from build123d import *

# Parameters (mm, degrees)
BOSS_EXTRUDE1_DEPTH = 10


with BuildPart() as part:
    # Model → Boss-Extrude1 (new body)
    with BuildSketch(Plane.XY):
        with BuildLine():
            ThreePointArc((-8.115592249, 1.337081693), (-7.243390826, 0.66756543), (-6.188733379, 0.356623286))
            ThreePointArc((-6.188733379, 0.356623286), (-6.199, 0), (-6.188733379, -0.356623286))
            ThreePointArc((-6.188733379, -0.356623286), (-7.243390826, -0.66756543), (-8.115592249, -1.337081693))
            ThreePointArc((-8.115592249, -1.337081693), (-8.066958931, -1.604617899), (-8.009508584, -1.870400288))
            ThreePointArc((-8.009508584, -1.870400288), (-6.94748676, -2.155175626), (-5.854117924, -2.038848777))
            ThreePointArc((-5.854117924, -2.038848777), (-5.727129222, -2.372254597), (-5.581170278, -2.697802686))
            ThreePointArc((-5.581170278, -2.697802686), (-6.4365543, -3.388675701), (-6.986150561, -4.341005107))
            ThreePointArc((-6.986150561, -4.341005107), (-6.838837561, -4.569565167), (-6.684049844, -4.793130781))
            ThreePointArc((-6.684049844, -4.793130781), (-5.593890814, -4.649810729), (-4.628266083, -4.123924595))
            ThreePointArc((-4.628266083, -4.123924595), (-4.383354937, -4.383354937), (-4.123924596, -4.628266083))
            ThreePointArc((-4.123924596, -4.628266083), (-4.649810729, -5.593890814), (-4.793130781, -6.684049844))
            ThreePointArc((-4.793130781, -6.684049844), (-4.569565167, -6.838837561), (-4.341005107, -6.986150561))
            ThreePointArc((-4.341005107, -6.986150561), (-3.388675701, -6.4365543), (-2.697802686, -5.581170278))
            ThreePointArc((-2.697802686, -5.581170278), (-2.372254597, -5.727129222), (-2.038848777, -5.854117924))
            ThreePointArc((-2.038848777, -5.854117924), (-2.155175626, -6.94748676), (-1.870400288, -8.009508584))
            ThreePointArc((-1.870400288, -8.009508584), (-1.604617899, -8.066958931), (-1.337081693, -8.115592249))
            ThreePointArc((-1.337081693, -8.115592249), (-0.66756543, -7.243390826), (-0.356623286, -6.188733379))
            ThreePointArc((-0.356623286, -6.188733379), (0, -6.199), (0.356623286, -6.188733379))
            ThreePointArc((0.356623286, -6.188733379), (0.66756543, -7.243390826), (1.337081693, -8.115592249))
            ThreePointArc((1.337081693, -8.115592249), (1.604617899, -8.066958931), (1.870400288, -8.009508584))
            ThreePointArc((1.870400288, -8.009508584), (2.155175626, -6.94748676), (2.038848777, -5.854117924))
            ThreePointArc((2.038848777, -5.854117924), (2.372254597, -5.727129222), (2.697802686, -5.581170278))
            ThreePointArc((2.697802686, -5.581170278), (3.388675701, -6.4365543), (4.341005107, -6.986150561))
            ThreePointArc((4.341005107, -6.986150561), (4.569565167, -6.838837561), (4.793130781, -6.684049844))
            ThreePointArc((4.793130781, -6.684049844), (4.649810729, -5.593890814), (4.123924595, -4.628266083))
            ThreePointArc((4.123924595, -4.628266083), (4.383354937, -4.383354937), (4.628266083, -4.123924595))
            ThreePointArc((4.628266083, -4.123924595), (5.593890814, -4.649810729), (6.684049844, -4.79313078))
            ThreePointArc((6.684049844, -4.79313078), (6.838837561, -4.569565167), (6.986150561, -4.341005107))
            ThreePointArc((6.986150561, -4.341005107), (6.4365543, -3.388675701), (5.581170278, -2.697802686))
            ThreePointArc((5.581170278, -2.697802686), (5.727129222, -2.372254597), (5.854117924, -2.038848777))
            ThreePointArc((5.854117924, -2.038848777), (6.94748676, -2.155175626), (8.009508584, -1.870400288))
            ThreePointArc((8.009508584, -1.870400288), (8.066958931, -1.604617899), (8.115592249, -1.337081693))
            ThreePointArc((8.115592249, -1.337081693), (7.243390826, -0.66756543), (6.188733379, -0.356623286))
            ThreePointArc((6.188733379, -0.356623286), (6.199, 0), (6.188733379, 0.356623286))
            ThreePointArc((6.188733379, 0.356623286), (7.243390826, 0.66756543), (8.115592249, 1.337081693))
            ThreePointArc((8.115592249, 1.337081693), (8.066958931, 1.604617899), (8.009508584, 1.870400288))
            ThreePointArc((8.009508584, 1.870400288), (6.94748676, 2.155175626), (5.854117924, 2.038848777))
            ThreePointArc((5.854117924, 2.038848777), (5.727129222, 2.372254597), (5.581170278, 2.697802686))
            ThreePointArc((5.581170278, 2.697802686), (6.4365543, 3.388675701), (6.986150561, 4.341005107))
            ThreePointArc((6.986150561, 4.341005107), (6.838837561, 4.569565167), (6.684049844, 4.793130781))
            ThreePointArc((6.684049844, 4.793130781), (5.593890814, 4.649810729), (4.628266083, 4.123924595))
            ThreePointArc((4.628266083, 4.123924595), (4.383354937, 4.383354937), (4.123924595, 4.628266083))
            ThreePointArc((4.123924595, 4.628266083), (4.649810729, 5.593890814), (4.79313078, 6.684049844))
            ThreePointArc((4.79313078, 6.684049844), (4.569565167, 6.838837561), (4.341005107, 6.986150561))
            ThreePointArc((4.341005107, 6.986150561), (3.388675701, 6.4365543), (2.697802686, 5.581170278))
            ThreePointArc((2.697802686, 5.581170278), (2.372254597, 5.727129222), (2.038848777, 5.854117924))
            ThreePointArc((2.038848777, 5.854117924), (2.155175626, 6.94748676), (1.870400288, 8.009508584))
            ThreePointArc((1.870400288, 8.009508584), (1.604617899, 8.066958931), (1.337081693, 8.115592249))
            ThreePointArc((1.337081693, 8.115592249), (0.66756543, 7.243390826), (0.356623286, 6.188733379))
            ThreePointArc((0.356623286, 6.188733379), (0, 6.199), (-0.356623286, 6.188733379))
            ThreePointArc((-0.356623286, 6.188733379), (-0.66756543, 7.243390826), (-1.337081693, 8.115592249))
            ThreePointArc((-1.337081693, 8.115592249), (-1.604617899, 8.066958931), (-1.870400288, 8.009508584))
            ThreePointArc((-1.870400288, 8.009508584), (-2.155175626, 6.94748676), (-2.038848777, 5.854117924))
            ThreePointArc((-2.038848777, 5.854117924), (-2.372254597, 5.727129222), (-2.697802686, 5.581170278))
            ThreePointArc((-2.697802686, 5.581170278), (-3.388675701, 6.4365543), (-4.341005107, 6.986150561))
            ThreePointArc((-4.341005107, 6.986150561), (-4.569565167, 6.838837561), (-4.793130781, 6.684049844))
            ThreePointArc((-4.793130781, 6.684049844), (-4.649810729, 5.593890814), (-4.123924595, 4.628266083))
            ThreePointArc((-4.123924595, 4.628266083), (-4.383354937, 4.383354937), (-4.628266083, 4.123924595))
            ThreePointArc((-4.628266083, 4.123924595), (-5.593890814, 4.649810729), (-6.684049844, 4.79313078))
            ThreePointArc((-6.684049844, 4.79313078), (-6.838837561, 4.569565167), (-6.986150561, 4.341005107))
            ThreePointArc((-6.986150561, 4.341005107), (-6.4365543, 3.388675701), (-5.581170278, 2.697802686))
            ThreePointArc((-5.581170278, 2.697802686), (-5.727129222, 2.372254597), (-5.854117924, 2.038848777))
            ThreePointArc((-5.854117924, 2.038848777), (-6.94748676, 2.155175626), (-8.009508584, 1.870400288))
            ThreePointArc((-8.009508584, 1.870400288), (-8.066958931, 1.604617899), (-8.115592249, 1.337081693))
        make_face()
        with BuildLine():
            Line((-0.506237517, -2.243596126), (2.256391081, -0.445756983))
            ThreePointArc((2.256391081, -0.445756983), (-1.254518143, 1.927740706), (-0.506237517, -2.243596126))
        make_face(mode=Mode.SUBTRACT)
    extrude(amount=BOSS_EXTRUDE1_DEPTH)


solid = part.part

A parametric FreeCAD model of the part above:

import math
import FreeCAD as App
import Part
import Sketcher

V = App.Vector

doc = App.newDocument("Part")
body = doc.addObject("PartDesign::Body", "Body")

# Sketch on XY plane
sketch1 = doc.addObject("Sketcher::SketchObject", "Sketch")
body.addObject(sketch1)
sketch1.AttachmentSupport = (doc.XY_Plane, [""])
sketch1.MapMode = "FlatFace"
sketch1.addGeometry([
    Part.ArcOfCircle(Part.Circle(V(-5.9, 3.3, 0), V(0, 0, 1), 3), math.radians(-138), math.radians(-96)),  # 0
    Part.ArcOfCircle(Part.Circle(V(0, 0, 0), V(0, 0, 1), 6.2), math.radians(176.7), math.radians(183.3)),  # 1
    Part.ArcOfCircle(Part.Circle(V(-5.9, -3.3, 0), V(0, 0, 1), 3), math.radians(96), math.radians(138)),  # 2
    Part.ArcOfCircle(Part.Circle(V(0, 0, 0), V(0, 0, 1), 8.2), math.radians(-170.64), math.radians(-166.86)),  # 3
    Part.ArcOfCircle(Part.Circle(V(-6.7, 0.8, 0), V(0, 0, 1), 3), math.radians(-116), math.radians(-73)),  # 4
    Part.ArcOfCircle(Part.Circle(V(0, 0, 0), V(0, 0, 1), 6.2), math.radians(-160.8), math.radians(-154.2)),  # 5
    Part.ArcOfCircle(Part.Circle(V(-4.2, -5.3, 0), V(0, 0, 1), 3), math.radians(118), math.radians(161)),  # 6
    Part.ArcOfCircle(Part.Circle(V(0, 0, 0), V(0, 0, 1), 8.2), math.radians(-148.14), math.radians(-144.36)),  # 7
    Part.ArcOfCircle(Part.Circle(V(-6.5, -1.8, 0), V(0, 0, 1), 3), math.radians(-93), math.radians(-51)),  # 8
    Part.ArcOfCircle(Part.Circle(V(0, 0, 0), V(0, 0, 1), 6.2), math.radians(-138.3), math.radians(-131.7)),  # 9
    Part.ArcOfCircle(Part.Circle(V(-1.8, -6.5, 0), V(0, 0, 1), 3), math.radians(141), math.radians(183)),  # 10
    Part.ArcOfCircle(Part.Circle(V(0, 0, 0), V(0, 0, 1), 8.2), math.radians(-125.64), math.radians(-121.86)),  # 11
    Part.ArcOfCircle(Part.Circle(V(-5.3, -4.2, 0), V(0, 0, 1), 3), math.radians(-71), math.radians(-28)),  # 12
    Part.ArcOfCircle(Part.Circle(V(0, 0, 0), V(0, 0, 1), 6.2), math.radians(-115.8), math.radians(-109.2)),  # 13
    Part.ArcOfCircle(Part.Circle(V(0.8, -6.7, 0), V(0, 0, 1), 3), math.radians(163), math.radians(206)),  # 14
    Part.ArcOfCircle(Part.Circle(V(0, 0, 0), V(0, 0, 1), 8.2), math.radians(-103.14), math.radians(-99.36)),  # 15
    Part.ArcOfCircle(Part.Circle(V(-3.3, -5.9, 0), V(0, 0, 1), 3), math.radians(-48), math.radians(-6)),  # 16
    Part.ArcOfCircle(Part.Circle(V(0, 0, 0), V(0, 0, 1), 6.2), math.radians(-93.3), math.radians(-86.7)),  # 17
    Part.ArcOfCircle(Part.Circle(V(3.3, -5.9, 0), V(0, 0, 1), 3), math.radians(-174), math.radians(-132)),  # 18
    Part.ArcOfCircle(Part.Circle(V(0, 0, 0), V(0, 0, 1), 8.2), math.radians(-80.64), math.radians(-76.86)),  # 19
    Part.ArcOfCircle(Part.Circle(V(-0.8, -6.7, 0), V(0, 0, 1), 3), math.radians(-26), math.radians(17)),  # 20
    Part.ArcOfCircle(Part.Circle(V(0, 0, 0), V(0, 0, 1), 6.2), math.radians(-70.8), math.radians(-64.2)),  # 21
    Part.ArcOfCircle(Part.Circle(V(5.3, -4.2, 0), V(0, 0, 1), 3), math.radians(-152), math.radians(-109)),  # 22
    Part.ArcOfCircle(Part.Circle(V(0, 0, 0), V(0, 0, 1), 8.2), math.radians(-58.14), math.radians(-54.36)),  # 23
    Part.ArcOfCircle(Part.Circle(V(1.8, -6.5, 0), V(0, 0, 1), 3), math.radians(-3), math.radians(39)),  # 24
    Part.ArcOfCircle(Part.Circle(V(0, 0, 0), V(0, 0, 1), 6.2), math.radians(-48.3), math.radians(-41.7)),  # 25
    Part.ArcOfCircle(Part.Circle(V(6.5, -1.8, 0), V(0, 0, 1), 3), math.radians(-129), math.radians(-87)),  # 26
    Part.ArcOfCircle(Part.Circle(V(0, 0, 0), V(0, 0, 1), 8.2), math.radians(-35.64), math.radians(-31.86)),  # 27
    Part.ArcOfCircle(Part.Circle(V(4.2, -5.3, 0), V(0, 0, 1), 3), math.radians(19), math.radians(62)),  # 28
    Part.ArcOfCircle(Part.Circle(V(0, 0, 0), V(0, 0, 1), 6.2), math.radians(-25.8), math.radians(-19.2)),  # 29
    Part.ArcOfCircle(Part.Circle(V(6.7, 0.8, 0), V(0, 0, 1), 3), math.radians(-107), math.radians(-64)),  # 30
    Part.ArcOfCircle(Part.Circle(V(0, 0, 0), V(0, 0, 1), 8.2), math.radians(-13.14), math.radians(-9.36)),  # 31
    Part.ArcOfCircle(Part.Circle(V(5.9, -3.3, 0), V(0, 0, 1), 3), math.radians(42), math.radians(84)),  # 32
    Part.ArcOfCircle(Part.Circle(V(0, 0, 0), V(0, 0, 1), 6.2), math.radians(-3.3), math.radians(3.3)),  # 33
    Part.ArcOfCircle(Part.Circle(V(5.9, 3.3, 0), V(0, 0, 1), 3), math.radians(-84), math.radians(-42)),  # 34
    Part.ArcOfCircle(Part.Circle(V(0, 0, 0), V(0, 0, 1), 8.2), math.radians(9.36), math.radians(13.14)),  # 35
    Part.ArcOfCircle(Part.Circle(V(6.7, -0.8, 0), V(0, 0, 1), 3), math.radians(64), math.radians(107)),  # 36
    Part.ArcOfCircle(Part.Circle(V(0, 0, 0), V(0, 0, 1), 6.2), math.radians(19.2), math.radians(25.8)),  # 37
    Part.ArcOfCircle(Part.Circle(V(4.2, 5.3, 0), V(0, 0, 1), 3), math.radians(-62), math.radians(-19)),  # 38
    Part.ArcOfCircle(Part.Circle(V(0, 0, 0), V(0, 0, 1), 8.2), math.radians(31.86), math.radians(35.64)),  # 39
    Part.ArcOfCircle(Part.Circle(V(6.5, 1.8, 0), V(0, 0, 1), 3), math.radians(87), math.radians(129)),  # 40
    Part.ArcOfCircle(Part.Circle(V(0, 0, 0), V(0, 0, 1), 6.2), math.radians(41.7), math.radians(48.3)),  # 41
    Part.ArcOfCircle(Part.Circle(V(1.8, 6.5, 0), V(0, 0, 1), 3), math.radians(-39), math.radians(3)),  # 42
    Part.ArcOfCircle(Part.Circle(V(0, 0, 0), V(0, 0, 1), 8.2), math.radians(54.36), math.radians(58.14)),  # 43
    Part.ArcOfCircle(Part.Circle(V(5.3, 4.2, 0), V(0, 0, 1), 3), math.radians(109), math.radians(152)),  # 44
    Part.ArcOfCircle(Part.Circle(V(0, 0, 0), V(0, 0, 1), 6.2), math.radians(64.2), math.radians(70.8)),  # 45
    Part.ArcOfCircle(Part.Circle(V(-0.8, 6.7, 0), V(0, 0, 1), 3), math.radians(-17), math.radians(26)),  # 46
    Part.ArcOfCircle(Part.Circle(V(0, 0, 0), V(0, 0, 1), 8.2), math.radians(76.86), math.radians(80.64)),  # 47
    Part.ArcOfCircle(Part.Circle(V(3.3, 5.9, 0), V(0, 0, 1), 3), math.radians(132), math.radians(174)),  # 48
    Part.ArcOfCircle(Part.Circle(V(0, 0, 0), V(0, 0, 1), 6.2), math.radians(86.7), math.radians(93.3)),  # 49
    Part.ArcOfCircle(Part.Circle(V(-3.3, 5.9, 0), V(0, 0, 1), 3), math.radians(6), math.radians(48)),  # 50
    Part.ArcOfCircle(Part.Circle(V(0, 0, 0), V(0, 0, 1), 8.2), math.radians(99.36), math.radians(103.14)),  # 51
    Part.ArcOfCircle(Part.Circle(V(0.8, 6.7, 0), V(0, 0, 1), 3), math.radians(154), math.radians(197)),  # 52
    Part.ArcOfCircle(Part.Circle(V(0, 0, 0), V(0, 0, 1), 6.2), math.radians(109.2), math.radians(115.8)),  # 53
    Part.ArcOfCircle(Part.Circle(V(-5.3, 4.2, 0), V(0, 0, 1), 3), math.radians(28), math.radians(71)),  # 54
    Part.ArcOfCircle(Part.Circle(V(0, 0, 0), V(0, 0, 1), 8.2), math.radians(121.86), math.radians(125.64)),  # 55
    Part.ArcOfCircle(Part.Circle(V(-1.8, 6.5, 0), V(0, 0, 1), 3), math.radians(177), math.radians(219)),  # 56
    Part.ArcOfCircle(Part.Circle(V(0, 0, 0), V(0, 0, 1), 6.2), math.radians(131.7), math.radians(138.3)),  # 57
    Part.ArcOfCircle(Part.Circle(V(-6.5, 1.8, 0), V(0, 0, 1), 3), math.radians(51), math.radians(93)),  # 58
    Part.ArcOfCircle(Part.Circle(V(0, 0, 0), V(0, 0, 1), 8.2), math.radians(144.36), math.radians(148.14)),  # 59
    Part.ArcOfCircle(Part.Circle(V(-4.2, 5.3, 0), V(0, 0, 1), 3), math.radians(-161), math.radians(-118)),  # 60
    Part.ArcOfCircle(Part.Circle(V(0, 0, 0), V(0, 0, 1), 6.2), math.radians(154.2), math.radians(160.8)),  # 61
    Part.ArcOfCircle(Part.Circle(V(-6.7, -0.8, 0), V(0, 0, 1), 3), math.radians(73), math.radians(116)),  # 62
    Part.ArcOfCircle(Part.Circle(V(0, 0, 0), V(0, 0, 1), 8.2), math.radians(166.86), math.radians(170.64)),  # 63
    Part.LineSegment(V(2.3, -0.4, 0), V(-0.5, -2.2, 0)),  # 64
    Part.ArcOfCircle(Part.Circle(V(0, 0, 0), V(0, 0, 1), 2.3), math.radians(-11), math.radians(257)),  # 65
], False)
sketch1.addConstraint([
    Sketcher.Constraint("Coincident", 0, 2, 1, 1),
    Sketcher.Constraint("Coincident", 1, 2, 2, 1),
    Sketcher.Constraint("Coincident", 2, 2, 3, 1),
    Sketcher.Constraint("Coincident", 3, 2, 4, 1),
    Sketcher.Constraint("Coincident", 4, 2, 5, 1),
    Sketcher.Constraint("Coincident", 5, 2, 6, 1),
    Sketcher.Constraint("Coincident", 6, 2, 7, 1),
    Sketcher.Constraint("Coincident", 7, 2, 8, 1),
    Sketcher.Constraint("Coincident", 8, 2, 9, 1),
    Sketcher.Constraint("Coincident", 9, 2, 10, 1),
    Sketcher.Constraint("Coincident", 10, 2, 11, 1),
    Sketcher.Constraint("Coincident", 11, 2, 12, 1),
    Sketcher.Constraint("Coincident", 12, 2, 13, 1),
    Sketcher.Constraint("Coincident", 13, 2, 14, 1),
    Sketcher.Constraint("Coincident", 14, 2, 15, 1),
    Sketcher.Constraint("Coincident", 15, 2, 16, 1),
    Sketcher.Constraint("Coincident", 16, 2, 17, 1),
    Sketcher.Constraint("Coincident", 17, 2, 18, 1),
    Sketcher.Constraint("Coincident", 18, 2, 19, 1),
    Sketcher.Constraint("Coincident", 19, 2, 20, 1),
    Sketcher.Constraint("Coincident", 20, 2, 21, 1),
    Sketcher.Constraint("Coincident", 21, 2, 22, 1),
    Sketcher.Constraint("Coincident", 22, 2, 23, 1),
    Sketcher.Constraint("Coincident", 23, 2, 24, 1),
    Sketcher.Constraint("Coincident", 24, 2, 25, 1),
    Sketcher.Constraint("Coincident", 25, 2, 26, 1),
    Sketcher.Constraint("Coincident", 26, 2, 27, 1),
    Sketcher.Constraint("Coincident", 27, 2, 28, 1),
    Sketcher.Constraint("Coincident", 28, 2, 29, 1),
    Sketcher.Constraint("Coincident", 29, 2, 30, 1),
    Sketcher.Constraint("Coincident", 30, 2, 31, 1),
    Sketcher.Constraint("Coincident", 31, 2, 32, 1),
    Sketcher.Constraint("Coincident", 32, 2, 33, 1),
    Sketcher.Constraint("Coincident", 33, 2, 34, 1),
    Sketcher.Constraint("Coincident", 34, 2, 35, 1),
    Sketcher.Constraint("Coincident", 35, 2, 36, 1),
    Sketcher.Constraint("Coincident", 36, 2, 37, 1),
    Sketcher.Constraint("Coincident", 37, 2, 38, 1),
    Sketcher.Constraint("Coincident", 38, 2, 39, 1),
    Sketcher.Constraint("Coincident", 39, 2, 40, 1),
    Sketcher.Constraint("Coincident", 40, 2, 41, 1),
    Sketcher.Constraint("Coincident", 41, 2, 42, 1),
    Sketcher.Constraint("Coincident", 42, 2, 43, 1),
    Sketcher.Constraint("Coincident", 43, 2, 44, 1),
    Sketcher.Constraint("Coincident", 44, 2, 45, 1),
    Sketcher.Constraint("Coincident", 45, 2, 46, 1),
    Sketcher.Constraint("Coincident", 46, 2, 47, 1),
    Sketcher.Constraint("Coincident", 47, 2, 48, 1),
    Sketcher.Constraint("Coincident", 48, 2, 49, 1),
    Sketcher.Constraint("Coincident", 49, 2, 50, 1),
    Sketcher.Constraint("Coincident", 50, 2, 51, 1),
    Sketcher.Constraint("Coincident", 51, 2, 52, 1),
    Sketcher.Constraint("Coincident", 52, 2, 53, 1),
    Sketcher.Constraint("Coincident", 53, 2, 54, 1),
    Sketcher.Constraint("Coincident", 54, 2, 55, 1),
    Sketcher.Constraint("Coincident", 55, 2, 56, 1),
    Sketcher.Constraint("Coincident", 56, 2, 57, 1),
    Sketcher.Constraint("Coincident", 57, 2, 58, 1),
    Sketcher.Constraint("Coincident", 58, 2, 59, 1),
    Sketcher.Constraint("Coincident", 59, 2, 60, 1),
    Sketcher.Constraint("Coincident", 60, 2, 61, 1),
    Sketcher.Constraint("Coincident", 61, 2, 62, 1),
    Sketcher.Constraint("Coincident", 62, 2, 63, 1),
    Sketcher.Constraint("Coincident", 63, 2, 0, 1),
    Sketcher.Constraint("Coincident", 64, 1, 65, 1),
    Sketcher.Constraint("Coincident", 65, 2, 64, 2),
    Sketcher.Constraint("Coincident", 1, 3, -1, 1),
    Sketcher.Constraint("Coincident", 3, 3, -1, 1),
    Sketcher.Constraint("Coincident", 5, 3, -1, 1),
    Sketcher.Constraint("Coincident", 7, 3, -1, 1),
    Sketcher.Constraint("Coincident", 9, 3, -1, 1),
    Sketcher.Constraint("Coincident", 11, 3, -1, 1),
    Sketcher.Constraint("Coincident", 13, 3, -1, 1),
    Sketcher.Constraint("Coincident", 15, 3, -1, 1),
    Sketcher.Constraint("Coincident", 17, 3, -1, 1),
    Sketcher.Constraint("Coincident", 19, 3, -1, 1),
    Sketcher.Constraint("Coincident", 21, 3, -1, 1),
    Sketcher.Constraint("Coincident", 23, 3, -1, 1),
    Sketcher.Constraint("Coincident", 25, 3, -1, 1),
    Sketcher.Constraint("Coincident", 27, 3, -1, 1),
    Sketcher.Constraint("Coincident", 29, 3, -1, 1),
    Sketcher.Constraint("Coincident", 31, 3, -1, 1),
    Sketcher.Constraint("Coincident", 33, 3, -1, 1),
    Sketcher.Constraint("Coincident", 35, 3, -1, 1),
    Sketcher.Constraint("Coincident", 37, 3, -1, 1),
    Sketcher.Constraint("Coincident", 39, 3, -1, 1),
    Sketcher.Constraint("Coincident", 41, 3, -1, 1),
    Sketcher.Constraint("Coincident", 43, 3, -1, 1),
    Sketcher.Constraint("Coincident", 45, 3, -1, 1),
    Sketcher.Constraint("Coincident", 47, 3, -1, 1),
    Sketcher.Constraint("Coincident", 49, 3, -1, 1),
    Sketcher.Constraint("Coincident", 51, 3, -1, 1),
    Sketcher.Constraint("Coincident", 53, 3, -1, 1),
    Sketcher.Constraint("Coincident", 55, 3, -1, 1),
    Sketcher.Constraint("Coincident", 57, 3, -1, 1),
    Sketcher.Constraint("Coincident", 59, 3, -1, 1),
    Sketcher.Constraint("Coincident", 61, 3, -1, 1),
    Sketcher.Constraint("Coincident", 63, 3, -1, 1),
    Sketcher.Constraint("Coincident", 65, 3, -1, 1),
    Sketcher.Constraint("Equal", 0, 2),
    Sketcher.Constraint("Equal", 2, 4),
    Sketcher.Constraint("Equal", 1, 5),
    Sketcher.Constraint("Equal", 4, 6),
    Sketcher.Constraint("Equal", 3, 7),
    Sketcher.Constraint("Equal", 6, 8),
    Sketcher.Constraint("Equal", 5, 9),
    Sketcher.Constraint("Equal", 8, 10),
    Sketcher.Constraint("Equal", 7, 11),
    Sketcher.Constraint("Equal", 10, 12),
    Sketcher.Constraint("Equal", 9, 13),
    Sketcher.Constraint("Equal", 12, 14),
    Sketcher.Constraint("Equal", 11, 15),
    Sketcher.Constraint("Equal", 14, 16),
    Sketcher.Constraint("Equal", 13, 17),
    Sketcher.Constraint("Equal", 16, 18),
    Sketcher.Constraint("Equal", 15, 19),
    Sketcher.Constraint("Equal", 18, 20),
    Sketcher.Constraint("Equal", 17, 21),
    Sketcher.Constraint("Equal", 20, 22),
    Sketcher.Constraint("Equal", 19, 23),
    Sketcher.Constraint("Equal", 22, 24),
    Sketcher.Constraint("Equal", 21, 25),
    Sketcher.Constraint("Equal", 24, 26),
    Sketcher.Constraint("Equal", 23, 27),
    Sketcher.Constraint("Equal", 26, 28),
    Sketcher.Constraint("Equal", 25, 29),
    Sketcher.Constraint("Equal", 28, 30),
    Sketcher.Constraint("Equal", 27, 31),
    Sketcher.Constraint("Equal", 30, 32),
    Sketcher.Constraint("Equal", 29, 33),
    Sketcher.Constraint("Equal", 32, 34),
    Sketcher.Constraint("Equal", 31, 35),
    Sketcher.Constraint("Equal", 34, 36),
    Sketcher.Constraint("Equal", 33, 37),
    Sketcher.Constraint("Equal", 36, 38),
    Sketcher.Constraint("Equal", 35, 39),
    Sketcher.Constraint("Equal", 38, 40),
    Sketcher.Constraint("Equal", 37, 41),
    Sketcher.Constraint("Equal", 40, 42),
    Sketcher.Constraint("Equal", 39, 43),
    Sketcher.Constraint("Equal", 42, 44),
    Sketcher.Constraint("Equal", 41, 45),
    Sketcher.Constraint("Equal", 44, 46),
    Sketcher.Constraint("Equal", 43, 47),
    Sketcher.Constraint("Equal", 46, 48),
    Sketcher.Constraint("Equal", 45, 49),
    Sketcher.Constraint("Equal", 48, 50),
    Sketcher.Constraint("Equal", 47, 51),
    Sketcher.Constraint("Equal", 50, 52),
    Sketcher.Constraint("Equal", 49, 53),
    Sketcher.Constraint("Equal", 52, 54),
    Sketcher.Constraint("Equal", 51, 55),
    Sketcher.Constraint("Equal", 54, 56),
    Sketcher.Constraint("Equal", 53, 57),
    Sketcher.Constraint("Equal", 56, 58),
    Sketcher.Constraint("Equal", 55, 59),
    Sketcher.Constraint("Equal", 58, 60),
    Sketcher.Constraint("Equal", 57, 61),
    Sketcher.Constraint("Equal", 60, 62),
    Sketcher.Constraint("Equal", 59, 63),
    Sketcher.Constraint("Symmetric", 0, 3, 32, 3, -1, 1),
    Sketcher.Constraint("Symmetric", 2, 3, 34, 3, -1, 1),
    Sketcher.Constraint("Symmetric", 4, 3, 36, 3, -1, 1),
    Sketcher.Constraint("Symmetric", 6, 3, 38, 3, -1, 1),
    Sketcher.Constraint("Symmetric", 8, 3, 40, 3, -1, 1),
    Sketcher.Constraint("Symmetric", 10, 3, 42, 3, -1, 1),
    Sketcher.Constraint("Symmetric", 12, 3, 44, 3, -1, 1),
    Sketcher.Constraint("Symmetric", 14, 3, 46, 3, -1, 1),
    Sketcher.Constraint("Symmetric", 16, 3, 48, 3, -1, 1),
    Sketcher.Constraint("Symmetric", 18, 3, 50, 3, -1, 1),
    Sketcher.Constraint("Symmetric", 20, 3, 52, 3, -1, 1),
    Sketcher.Constraint("Symmetric", 22, 3, 54, 3, -1, 1),
    Sketcher.Constraint("Symmetric", 24, 3, 56, 3, -1, 1),
    Sketcher.Constraint("Symmetric", 26, 3, 58, 3, -1, 1),
    Sketcher.Constraint("Symmetric", 28, 3, 60, 3, -1, 1),
    Sketcher.Constraint("Symmetric", 30, 3, 62, 3, -1, 1),
    Sketcher.Constraint("Symmetric", 16, 3, 18, 3, -2),
    Sketcher.Constraint("Symmetric", 14, 3, 20, 3, -2),
    Sketcher.Constraint("Symmetric", 12, 3, 22, 3, -2),
    Sketcher.Constraint("Symmetric", 10, 3, 24, 3, -2),
    Sketcher.Constraint("Symmetric", 8, 3, 26, 3, -2),
    Sketcher.Constraint("Symmetric", 6, 3, 28, 3, -2),
    Sketcher.Constraint("Symmetric", 4, 3, 30, 3, -2),
    Sketcher.Constraint("Symmetric", 2, 3, 32, 3, -2),
    Sketcher.Constraint("Radius", 65, 2.3),
    Sketcher.Constraint("Radius", 0, 3.005),
    Sketcher.Constraint("Radius", 1, 6.199),
    Sketcher.Constraint("Radius", 3, 8.225),
    Sketcher.Constraint("DistanceX", 6, 3, -1, 1, 4.152601),
    Sketcher.Constraint("DistanceY", 12, 3, -1, 1, 4.152601),
    Sketcher.Constraint("DistanceY", 3, 2, -1, 1, 1.8704),
    Sketcher.Constraint("DistanceX", 14, 2, -1, 1, 1.8704),
    Sketcher.Constraint("Distance", 64, 3.29611),
    Sketcher.Constraint("DistanceX", 0, 3, -1, 1, 5.880612),
    Sketcher.Constraint("DistanceY", -1, 1, 4, 3, 0.840689),
    Sketcher.Constraint("DistanceX", -1, 1, 14, 3, 0.840689),
    Sketcher.Constraint("DistanceY", 16, 3, -1, 1, 5.880612),
    Sketcher.Constraint("DistanceY", 2, 2, -1, 1, 1.337082),
    Sketcher.Constraint("DistanceX", 5, 2, -1, 1, 5.58117),
    Sketcher.Constraint("DistanceX", 7, 2, -1, 1, 6.68405),
    Sketcher.Constraint("DistanceX", 10, 2, -1, 1, 4.793131),
    Sketcher.Constraint("DistanceY", 11, 2, -1, 1, 6.986151),
    Sketcher.Constraint("DistanceX", 15, 2, -1, 1, 1.337082),
    Sketcher.Constraint("DistanceX", -1, 1, 64, 1, 2.256391),
    Sketcher.Constraint("DistanceX", 8, 3, -1, 1, 6.524048),
    Sketcher.Constraint("DistanceX", 10, 3, -1, 1, 1.792393),
])
pad1 = doc.addObject("PartDesign::Pad", "Pad")
body.addObject(pad1)
pad1.Profile = sketch1
pad1.Length = 10

doc.recompute()
